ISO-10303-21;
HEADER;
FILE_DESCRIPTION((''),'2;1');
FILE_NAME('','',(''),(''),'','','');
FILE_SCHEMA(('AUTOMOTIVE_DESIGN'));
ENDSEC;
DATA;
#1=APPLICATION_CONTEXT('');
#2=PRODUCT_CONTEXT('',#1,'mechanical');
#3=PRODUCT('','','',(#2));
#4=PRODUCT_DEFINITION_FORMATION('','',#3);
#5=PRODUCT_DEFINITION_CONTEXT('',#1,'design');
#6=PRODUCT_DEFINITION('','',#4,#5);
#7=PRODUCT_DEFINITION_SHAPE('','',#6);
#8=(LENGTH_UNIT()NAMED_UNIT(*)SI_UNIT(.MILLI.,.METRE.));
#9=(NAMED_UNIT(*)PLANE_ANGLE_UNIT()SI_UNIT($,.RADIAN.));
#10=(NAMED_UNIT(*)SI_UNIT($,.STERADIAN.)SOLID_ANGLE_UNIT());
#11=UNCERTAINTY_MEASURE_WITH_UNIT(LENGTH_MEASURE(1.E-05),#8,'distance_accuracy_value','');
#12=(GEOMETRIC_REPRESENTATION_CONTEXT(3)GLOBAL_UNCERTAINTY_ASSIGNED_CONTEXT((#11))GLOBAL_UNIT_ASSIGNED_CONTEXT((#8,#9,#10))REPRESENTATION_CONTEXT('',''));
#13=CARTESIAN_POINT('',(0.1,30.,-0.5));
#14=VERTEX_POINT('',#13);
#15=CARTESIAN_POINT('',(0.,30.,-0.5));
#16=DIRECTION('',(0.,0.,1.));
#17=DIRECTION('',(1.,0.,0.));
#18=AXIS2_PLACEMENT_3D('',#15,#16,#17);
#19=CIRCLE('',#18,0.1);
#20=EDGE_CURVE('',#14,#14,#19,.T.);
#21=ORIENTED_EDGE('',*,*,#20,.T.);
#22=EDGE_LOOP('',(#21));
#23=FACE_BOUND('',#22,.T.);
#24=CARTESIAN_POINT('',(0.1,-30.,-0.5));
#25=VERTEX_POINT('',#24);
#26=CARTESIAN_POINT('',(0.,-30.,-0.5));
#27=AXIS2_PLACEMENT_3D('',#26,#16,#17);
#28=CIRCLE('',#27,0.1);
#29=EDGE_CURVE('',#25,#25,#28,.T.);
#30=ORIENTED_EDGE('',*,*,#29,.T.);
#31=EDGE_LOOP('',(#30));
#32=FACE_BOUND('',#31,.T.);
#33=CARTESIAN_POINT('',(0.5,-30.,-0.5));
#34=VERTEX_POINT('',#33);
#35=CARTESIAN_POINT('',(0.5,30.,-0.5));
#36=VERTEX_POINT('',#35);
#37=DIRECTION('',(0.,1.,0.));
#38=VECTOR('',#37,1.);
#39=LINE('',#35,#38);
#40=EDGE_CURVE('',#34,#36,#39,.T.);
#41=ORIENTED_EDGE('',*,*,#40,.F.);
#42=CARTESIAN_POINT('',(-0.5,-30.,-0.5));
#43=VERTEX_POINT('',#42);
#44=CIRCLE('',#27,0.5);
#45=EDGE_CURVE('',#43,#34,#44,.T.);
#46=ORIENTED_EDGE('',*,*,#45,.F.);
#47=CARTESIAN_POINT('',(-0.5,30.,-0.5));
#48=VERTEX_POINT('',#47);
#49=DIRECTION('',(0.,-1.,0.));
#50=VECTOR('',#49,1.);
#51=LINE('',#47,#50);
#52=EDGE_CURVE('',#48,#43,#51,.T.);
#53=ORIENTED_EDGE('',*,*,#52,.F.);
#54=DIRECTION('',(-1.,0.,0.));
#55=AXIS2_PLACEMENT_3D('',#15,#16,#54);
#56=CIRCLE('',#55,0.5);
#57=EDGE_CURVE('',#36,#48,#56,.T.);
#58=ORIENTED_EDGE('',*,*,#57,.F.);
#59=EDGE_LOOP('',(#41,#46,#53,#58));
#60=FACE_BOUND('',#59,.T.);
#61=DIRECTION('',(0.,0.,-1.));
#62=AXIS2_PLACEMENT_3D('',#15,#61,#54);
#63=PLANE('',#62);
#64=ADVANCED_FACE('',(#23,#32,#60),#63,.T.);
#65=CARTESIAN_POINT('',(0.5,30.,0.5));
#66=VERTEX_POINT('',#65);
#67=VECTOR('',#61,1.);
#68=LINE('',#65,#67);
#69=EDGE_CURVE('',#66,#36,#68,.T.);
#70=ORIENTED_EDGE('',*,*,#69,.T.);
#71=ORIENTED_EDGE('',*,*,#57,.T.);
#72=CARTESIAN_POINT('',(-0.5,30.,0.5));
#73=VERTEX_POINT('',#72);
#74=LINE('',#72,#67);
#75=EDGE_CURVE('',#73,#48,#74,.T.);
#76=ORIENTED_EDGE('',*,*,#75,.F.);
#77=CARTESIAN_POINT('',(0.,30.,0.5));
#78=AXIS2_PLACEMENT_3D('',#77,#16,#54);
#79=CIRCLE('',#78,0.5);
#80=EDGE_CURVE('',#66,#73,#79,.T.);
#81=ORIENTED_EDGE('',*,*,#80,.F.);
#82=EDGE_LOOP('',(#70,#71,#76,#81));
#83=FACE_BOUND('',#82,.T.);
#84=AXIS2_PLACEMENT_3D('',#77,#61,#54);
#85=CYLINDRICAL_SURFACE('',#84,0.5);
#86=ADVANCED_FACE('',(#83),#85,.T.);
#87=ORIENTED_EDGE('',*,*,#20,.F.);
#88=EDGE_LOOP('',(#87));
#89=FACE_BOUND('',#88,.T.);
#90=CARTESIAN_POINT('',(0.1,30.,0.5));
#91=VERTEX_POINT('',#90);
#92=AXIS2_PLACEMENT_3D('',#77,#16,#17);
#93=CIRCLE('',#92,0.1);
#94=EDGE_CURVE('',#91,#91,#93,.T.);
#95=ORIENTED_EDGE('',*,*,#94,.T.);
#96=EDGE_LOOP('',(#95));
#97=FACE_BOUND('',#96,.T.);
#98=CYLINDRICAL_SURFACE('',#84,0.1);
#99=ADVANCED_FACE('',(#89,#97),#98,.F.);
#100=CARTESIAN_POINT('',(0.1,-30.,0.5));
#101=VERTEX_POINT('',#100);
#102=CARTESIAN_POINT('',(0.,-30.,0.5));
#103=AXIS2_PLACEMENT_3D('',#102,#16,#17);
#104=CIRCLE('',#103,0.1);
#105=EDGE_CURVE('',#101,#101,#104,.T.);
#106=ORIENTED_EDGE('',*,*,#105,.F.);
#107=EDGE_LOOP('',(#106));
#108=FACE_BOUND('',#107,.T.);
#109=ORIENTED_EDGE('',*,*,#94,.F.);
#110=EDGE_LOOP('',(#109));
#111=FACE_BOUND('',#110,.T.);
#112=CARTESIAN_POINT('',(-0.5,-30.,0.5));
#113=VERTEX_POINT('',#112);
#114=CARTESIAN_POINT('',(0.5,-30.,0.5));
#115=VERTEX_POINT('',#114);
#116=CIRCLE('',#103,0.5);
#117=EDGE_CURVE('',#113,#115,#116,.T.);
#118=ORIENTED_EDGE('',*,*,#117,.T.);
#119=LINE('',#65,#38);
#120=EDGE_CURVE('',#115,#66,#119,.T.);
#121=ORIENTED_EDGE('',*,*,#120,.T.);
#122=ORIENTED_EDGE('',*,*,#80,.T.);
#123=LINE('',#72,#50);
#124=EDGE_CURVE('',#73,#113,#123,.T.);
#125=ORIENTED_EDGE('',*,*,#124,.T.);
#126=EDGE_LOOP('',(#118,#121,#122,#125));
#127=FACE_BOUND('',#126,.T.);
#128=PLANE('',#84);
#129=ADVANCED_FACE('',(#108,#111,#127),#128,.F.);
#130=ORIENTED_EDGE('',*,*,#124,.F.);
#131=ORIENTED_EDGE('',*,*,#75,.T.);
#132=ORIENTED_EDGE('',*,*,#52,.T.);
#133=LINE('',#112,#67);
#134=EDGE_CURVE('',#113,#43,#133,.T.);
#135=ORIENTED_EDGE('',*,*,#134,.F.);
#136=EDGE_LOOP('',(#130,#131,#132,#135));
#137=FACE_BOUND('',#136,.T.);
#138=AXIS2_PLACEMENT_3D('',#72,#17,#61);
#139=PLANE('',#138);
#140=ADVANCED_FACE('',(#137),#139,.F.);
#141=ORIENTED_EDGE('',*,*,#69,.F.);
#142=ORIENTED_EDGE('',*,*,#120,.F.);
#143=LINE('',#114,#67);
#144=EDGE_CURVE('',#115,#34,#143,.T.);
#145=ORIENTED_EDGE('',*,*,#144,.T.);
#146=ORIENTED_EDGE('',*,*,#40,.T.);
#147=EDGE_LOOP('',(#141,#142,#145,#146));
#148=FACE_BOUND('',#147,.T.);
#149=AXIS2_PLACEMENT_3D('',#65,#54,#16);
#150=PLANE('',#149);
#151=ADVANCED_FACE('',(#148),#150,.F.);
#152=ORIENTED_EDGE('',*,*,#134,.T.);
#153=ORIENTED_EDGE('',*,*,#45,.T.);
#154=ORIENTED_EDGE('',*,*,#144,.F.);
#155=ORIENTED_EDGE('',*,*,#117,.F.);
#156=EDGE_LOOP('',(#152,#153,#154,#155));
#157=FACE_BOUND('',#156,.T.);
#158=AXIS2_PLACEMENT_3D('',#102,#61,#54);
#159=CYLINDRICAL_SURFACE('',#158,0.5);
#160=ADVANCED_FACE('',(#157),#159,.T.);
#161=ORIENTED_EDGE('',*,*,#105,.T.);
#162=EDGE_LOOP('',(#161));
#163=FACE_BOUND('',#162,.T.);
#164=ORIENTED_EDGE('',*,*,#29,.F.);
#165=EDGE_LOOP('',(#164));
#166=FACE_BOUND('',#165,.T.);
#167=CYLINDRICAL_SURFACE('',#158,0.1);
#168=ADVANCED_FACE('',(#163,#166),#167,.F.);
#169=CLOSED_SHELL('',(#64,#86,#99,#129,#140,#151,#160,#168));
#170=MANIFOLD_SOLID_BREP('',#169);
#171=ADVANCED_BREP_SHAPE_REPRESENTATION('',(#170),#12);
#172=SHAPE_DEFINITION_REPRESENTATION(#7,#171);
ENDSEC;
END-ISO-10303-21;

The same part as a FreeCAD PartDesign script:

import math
import FreeCAD as App
import Part
import Sketcher
from FreeCAD import Vector

doc = App.newDocument("Part")
body = doc.addObject("PartDesign::Body", "Body")

# Sketch on XY plane
sketch1 = doc.addObject("Sketcher::SketchObject", "Sketch")
body.addObject(sketch1)
sketch1.AttachmentSupport = (doc.XY_Plane, [""])
sketch1.MapMode = "FlatFace"
sketch1.addGeometry([
    Part.LineSegment(Vector(-0.5, 30, 0), Vector(-0.5, -30, 0)),  # 0
    Part.ArcOfCircle(Part.Circle(Vector(0, -30, 0), Vector(0, 0, 1), 0.5), math.radians(180), math.radians(360)),  # 1
    Part.LineSegment(Vector(0.5, -30, 0), Vector(0.5, 30, 0)),  # 2
    Part.ArcOfCircle(Part.Circle(Vector(0, 30, 0), Vector(0, 0, 1), 0.5), math.radians(0), math.radians(180)),  # 3
    Part.Circle(Vector(0, -30, 0), Vector(0, 0, 1), 0.1),  # 4
    Part.Circle(Vector(0, 30, 0), Vector(0, 0, 1), 0.1),  # 5
], False)
sketch1.addConstraint([
    Sketcher.Constraint("Tangent", 0, 2, 1, 1),
    Sketcher.Constraint("Tangent", 1, 2, 2, 1),
    Sketcher.Constraint("Tangent", 2, 2, 3, 1),
    Sketcher.Constraint("Tangent", 3, 2, 0, 1),
    Sketcher.Constraint("Vertical", 0),
    Sketcher.Constraint("Vertical", 2),
    Sketcher.Constraint("Coincident", 4, 3, 1, 3),
    Sketcher.Constraint("Coincident", 5, 3, 3, 3),
    Sketcher.Constraint("Equal", 4, 5),
    Sketcher.Constraint("Symmetric", 1, 3, 3, 3, -1, 1),
    Sketcher.Constraint("Diameter", 4, 0.2),
    Sketcher.Constraint("Radius", 1, 0.5),
    Sketcher.Constraint("DistanceY", 0, 2, 0, 1, 60.0),
])
pad1 = doc.addObject("PartDesign::Pad", "Pad")
body.addObject(pad1)
pad1.Profile = sketch1
pad1.Length = 1
pad1.Midplane = True

doc.recompute()
